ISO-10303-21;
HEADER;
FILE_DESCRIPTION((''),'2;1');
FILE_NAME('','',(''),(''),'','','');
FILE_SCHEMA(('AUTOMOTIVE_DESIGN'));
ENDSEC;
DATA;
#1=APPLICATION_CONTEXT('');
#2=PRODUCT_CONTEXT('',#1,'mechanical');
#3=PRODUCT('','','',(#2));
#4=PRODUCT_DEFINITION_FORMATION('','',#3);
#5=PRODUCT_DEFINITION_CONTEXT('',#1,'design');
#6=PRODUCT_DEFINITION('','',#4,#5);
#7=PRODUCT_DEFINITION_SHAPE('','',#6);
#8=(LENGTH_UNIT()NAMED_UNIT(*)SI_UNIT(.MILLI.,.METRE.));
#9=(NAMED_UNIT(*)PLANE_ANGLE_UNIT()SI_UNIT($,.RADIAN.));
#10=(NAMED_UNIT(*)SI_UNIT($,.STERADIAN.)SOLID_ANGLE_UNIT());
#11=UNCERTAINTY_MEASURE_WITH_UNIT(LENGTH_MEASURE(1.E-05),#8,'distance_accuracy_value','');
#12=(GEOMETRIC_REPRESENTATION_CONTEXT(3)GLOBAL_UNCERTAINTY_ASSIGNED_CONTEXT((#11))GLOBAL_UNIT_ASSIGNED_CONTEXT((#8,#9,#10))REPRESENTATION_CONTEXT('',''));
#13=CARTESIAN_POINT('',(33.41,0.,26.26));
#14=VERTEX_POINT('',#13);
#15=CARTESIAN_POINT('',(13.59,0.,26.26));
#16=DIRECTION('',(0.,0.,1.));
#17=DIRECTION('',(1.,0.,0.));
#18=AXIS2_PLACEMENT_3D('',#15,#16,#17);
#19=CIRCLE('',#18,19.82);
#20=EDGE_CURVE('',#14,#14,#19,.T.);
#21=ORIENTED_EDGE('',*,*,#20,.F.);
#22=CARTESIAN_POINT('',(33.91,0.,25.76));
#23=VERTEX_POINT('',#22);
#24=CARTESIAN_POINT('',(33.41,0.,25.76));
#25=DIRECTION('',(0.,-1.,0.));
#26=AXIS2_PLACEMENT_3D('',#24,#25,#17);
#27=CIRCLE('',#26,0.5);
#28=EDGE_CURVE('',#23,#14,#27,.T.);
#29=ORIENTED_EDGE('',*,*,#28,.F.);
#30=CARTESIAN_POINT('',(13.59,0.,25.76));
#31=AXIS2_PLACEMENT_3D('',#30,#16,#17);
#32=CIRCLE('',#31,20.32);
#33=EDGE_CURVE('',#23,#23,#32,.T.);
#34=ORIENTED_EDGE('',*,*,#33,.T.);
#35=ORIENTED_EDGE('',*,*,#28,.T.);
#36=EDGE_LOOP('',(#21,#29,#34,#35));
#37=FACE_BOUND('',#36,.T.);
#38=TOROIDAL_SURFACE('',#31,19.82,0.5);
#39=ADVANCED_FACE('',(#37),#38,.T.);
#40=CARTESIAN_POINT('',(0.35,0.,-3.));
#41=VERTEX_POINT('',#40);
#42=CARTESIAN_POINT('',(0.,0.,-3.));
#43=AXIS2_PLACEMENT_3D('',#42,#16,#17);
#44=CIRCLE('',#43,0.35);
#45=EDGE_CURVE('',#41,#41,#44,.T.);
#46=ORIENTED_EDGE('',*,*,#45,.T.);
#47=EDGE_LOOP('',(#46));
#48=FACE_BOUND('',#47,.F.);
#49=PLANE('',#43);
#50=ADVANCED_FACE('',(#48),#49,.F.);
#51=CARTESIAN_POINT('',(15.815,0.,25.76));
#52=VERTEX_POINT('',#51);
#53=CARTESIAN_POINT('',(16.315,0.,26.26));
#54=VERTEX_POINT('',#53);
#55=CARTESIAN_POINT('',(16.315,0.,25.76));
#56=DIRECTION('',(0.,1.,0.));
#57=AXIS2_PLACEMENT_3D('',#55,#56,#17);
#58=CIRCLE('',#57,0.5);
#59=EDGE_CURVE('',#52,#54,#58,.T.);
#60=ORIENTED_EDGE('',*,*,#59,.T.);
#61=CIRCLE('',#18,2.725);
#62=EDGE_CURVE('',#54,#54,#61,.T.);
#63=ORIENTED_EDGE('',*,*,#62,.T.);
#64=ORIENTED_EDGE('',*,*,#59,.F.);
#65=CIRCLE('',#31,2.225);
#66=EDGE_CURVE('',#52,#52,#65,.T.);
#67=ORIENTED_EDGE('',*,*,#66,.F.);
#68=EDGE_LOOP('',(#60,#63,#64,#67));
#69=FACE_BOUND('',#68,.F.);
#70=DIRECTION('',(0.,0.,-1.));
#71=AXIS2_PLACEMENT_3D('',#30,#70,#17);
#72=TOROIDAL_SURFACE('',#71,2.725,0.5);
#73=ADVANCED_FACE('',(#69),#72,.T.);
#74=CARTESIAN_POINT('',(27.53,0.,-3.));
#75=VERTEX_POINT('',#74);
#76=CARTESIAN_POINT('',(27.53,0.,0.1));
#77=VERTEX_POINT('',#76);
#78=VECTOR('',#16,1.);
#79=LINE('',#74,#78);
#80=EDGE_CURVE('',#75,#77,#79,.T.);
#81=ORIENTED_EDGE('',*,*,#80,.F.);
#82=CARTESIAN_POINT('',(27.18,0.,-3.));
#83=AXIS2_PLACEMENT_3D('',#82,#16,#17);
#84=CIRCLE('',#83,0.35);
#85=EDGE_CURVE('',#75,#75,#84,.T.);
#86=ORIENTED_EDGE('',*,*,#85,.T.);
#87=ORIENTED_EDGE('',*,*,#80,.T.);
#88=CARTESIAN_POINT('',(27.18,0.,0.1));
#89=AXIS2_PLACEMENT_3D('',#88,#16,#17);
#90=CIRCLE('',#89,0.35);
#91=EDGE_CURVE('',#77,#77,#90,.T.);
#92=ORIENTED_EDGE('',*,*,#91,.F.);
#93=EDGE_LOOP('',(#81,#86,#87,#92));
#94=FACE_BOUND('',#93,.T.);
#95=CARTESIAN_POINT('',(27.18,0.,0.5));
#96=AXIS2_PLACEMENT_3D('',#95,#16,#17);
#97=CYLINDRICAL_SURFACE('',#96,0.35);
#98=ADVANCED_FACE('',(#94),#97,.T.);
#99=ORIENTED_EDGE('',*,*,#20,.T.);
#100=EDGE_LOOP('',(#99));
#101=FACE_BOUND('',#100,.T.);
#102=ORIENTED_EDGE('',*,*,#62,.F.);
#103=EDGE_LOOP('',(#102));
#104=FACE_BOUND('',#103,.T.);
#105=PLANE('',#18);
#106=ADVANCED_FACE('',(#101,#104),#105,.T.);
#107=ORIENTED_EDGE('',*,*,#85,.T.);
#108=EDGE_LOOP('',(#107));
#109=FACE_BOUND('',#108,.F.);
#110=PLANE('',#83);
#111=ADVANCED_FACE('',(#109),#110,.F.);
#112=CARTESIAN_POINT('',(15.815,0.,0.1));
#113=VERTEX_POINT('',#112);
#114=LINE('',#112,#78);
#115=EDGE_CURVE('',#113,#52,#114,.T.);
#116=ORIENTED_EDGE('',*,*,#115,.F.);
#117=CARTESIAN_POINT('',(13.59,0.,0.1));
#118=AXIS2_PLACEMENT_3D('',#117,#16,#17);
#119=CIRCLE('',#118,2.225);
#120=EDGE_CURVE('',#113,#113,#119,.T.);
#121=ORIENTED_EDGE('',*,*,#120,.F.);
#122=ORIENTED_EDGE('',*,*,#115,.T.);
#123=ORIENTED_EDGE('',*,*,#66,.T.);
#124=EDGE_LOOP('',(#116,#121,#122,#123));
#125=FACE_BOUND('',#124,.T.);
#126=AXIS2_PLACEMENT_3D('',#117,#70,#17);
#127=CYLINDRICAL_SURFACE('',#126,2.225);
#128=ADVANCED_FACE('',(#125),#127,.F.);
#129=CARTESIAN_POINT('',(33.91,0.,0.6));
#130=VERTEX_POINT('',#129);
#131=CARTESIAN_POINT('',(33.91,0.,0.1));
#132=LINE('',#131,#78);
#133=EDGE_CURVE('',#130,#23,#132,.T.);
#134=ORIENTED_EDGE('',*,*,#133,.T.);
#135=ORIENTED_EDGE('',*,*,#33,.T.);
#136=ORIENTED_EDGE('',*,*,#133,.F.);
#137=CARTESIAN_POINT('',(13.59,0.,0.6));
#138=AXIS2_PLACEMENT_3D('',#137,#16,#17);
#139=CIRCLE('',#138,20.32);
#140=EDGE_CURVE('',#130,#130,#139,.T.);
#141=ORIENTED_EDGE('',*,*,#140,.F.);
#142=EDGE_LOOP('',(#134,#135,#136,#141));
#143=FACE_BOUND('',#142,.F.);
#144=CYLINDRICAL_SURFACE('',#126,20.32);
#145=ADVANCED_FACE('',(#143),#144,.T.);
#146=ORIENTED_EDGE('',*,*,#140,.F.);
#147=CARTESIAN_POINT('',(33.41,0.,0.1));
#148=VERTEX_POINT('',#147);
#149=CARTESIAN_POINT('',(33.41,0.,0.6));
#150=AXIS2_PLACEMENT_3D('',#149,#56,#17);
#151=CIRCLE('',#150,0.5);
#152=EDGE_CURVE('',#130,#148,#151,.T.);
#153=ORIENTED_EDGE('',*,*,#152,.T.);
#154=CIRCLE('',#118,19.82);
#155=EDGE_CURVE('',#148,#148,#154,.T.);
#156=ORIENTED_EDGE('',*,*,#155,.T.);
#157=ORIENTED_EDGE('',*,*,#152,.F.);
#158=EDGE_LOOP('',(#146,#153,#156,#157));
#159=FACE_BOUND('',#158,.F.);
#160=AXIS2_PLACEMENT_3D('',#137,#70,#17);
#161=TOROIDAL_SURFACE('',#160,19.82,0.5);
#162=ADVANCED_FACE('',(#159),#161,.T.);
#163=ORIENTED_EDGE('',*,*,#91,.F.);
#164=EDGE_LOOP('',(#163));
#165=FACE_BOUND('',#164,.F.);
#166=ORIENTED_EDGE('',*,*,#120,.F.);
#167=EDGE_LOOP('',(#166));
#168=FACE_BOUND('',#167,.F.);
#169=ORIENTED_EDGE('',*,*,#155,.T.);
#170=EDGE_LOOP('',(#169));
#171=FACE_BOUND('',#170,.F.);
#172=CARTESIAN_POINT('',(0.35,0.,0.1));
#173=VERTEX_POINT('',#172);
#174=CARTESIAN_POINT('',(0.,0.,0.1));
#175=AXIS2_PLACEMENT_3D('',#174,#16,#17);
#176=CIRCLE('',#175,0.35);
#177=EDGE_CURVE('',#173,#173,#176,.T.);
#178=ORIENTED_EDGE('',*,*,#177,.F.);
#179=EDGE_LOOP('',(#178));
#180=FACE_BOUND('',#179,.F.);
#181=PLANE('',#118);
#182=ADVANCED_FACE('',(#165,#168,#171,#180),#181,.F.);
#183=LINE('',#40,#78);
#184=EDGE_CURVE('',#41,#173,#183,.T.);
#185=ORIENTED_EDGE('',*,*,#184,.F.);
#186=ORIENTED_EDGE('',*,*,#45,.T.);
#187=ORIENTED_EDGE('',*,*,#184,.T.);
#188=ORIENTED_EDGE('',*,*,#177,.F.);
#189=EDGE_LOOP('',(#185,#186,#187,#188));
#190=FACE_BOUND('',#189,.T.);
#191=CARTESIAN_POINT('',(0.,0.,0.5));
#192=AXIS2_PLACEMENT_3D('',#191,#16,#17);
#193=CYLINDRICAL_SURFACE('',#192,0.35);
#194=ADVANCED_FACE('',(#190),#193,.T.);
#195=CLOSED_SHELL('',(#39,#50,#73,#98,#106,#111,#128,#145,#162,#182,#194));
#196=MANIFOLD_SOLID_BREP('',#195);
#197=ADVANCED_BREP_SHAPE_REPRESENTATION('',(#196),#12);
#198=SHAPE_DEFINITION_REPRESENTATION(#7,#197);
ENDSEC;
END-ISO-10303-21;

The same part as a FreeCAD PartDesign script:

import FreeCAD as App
import Part
import Sketcher
Q = App.Units.Quantity


def edges_at(feature, points):
    """Names of the edges that pass closest to the given points."""
    edges = feature.Shape.Edges
    near = lambda p: min(range(len(edges)), key=lambda i: edges[i].distToShape(Part.Vertex(*p))[0])
    return sorted({f"Edge{near(p) + 1}" for p in points})

doc = App.newDocument("Part")
body = doc.addObject("PartDesign::Body", "Body")

sketch1 = body.newObject("Sketcher::SketchObject", "Sketch")
sketch1.AttachmentSupport = (doc.getObject("XY_Plane"), [""])
sketch1.MapMode = "FlatFace"
sketch1.AttachmentOffset = App.Placement(App.Vector(0, 0, 0.1), App.Rotation())
sketch1.addGeometry(Part.Circle(App.Vector(13.6, 0, 0), App.Vector(0, 0, 1), 20.3), False)
sketch1.addGeometry(Part.Circle(App.Vector(13.6, 0, 0), App.Vector(0, 0, 1), 2.2), False)
sketch1.addConstraint(Sketcher.Constraint("Coincident", 1, 3, 0, 3))
sketch1.addConstraint(Sketcher.Constraint("PointOnObject", 0, 3, -1))
sketch1.addConstraint(Sketcher.Constraint("Diameter", 0, Q("40.64 mm")))
sketch1.addConstraint(Sketcher.Constraint("Diameter", 1, Q("4.45 mm")))
sketch1.addConstraint(Sketcher.Constraint("DistanceX", -1, 1, 0, 3, Q("13.59 mm")))
pad1 = body.newObject("PartDesign::Pad", "Pad")
pad1.Profile = sketch1
pad1.Length = 26.16
doc.recompute()

fillet = body.newObject("PartDesign::Fillet", "Fillet")
fillet.Base = (pad1, edges_at(pad1, [(11.365, 0, 26.26), (-6.73, 0, 26.26), (-6.73, 0, 0.1)]))
fillet.Radius = 0.5
body2 = doc.addObject("PartDesign::Body", "Body001")
body2.AllowCompound = True

sketch2 = body2.newObject("Sketcher::SketchObject", "Sketch001")
sketch2.AttachmentSupport = (doc.getObject("XY_Plane001"), [""])
sketch2.MapMode = "FlatFace"
sketch2.AttachmentOffset = App.Placement(App.Vector(0, 0, 0.5), App.Rotation())
sketch2.addGeometry(Part.Circle(App.Vector(0, 0, 0), App.Vector(0, 0, 1), 0.35), False)
sketch2.addGeometry(Part.Circle(App.Vector(27.18, 0, 0), App.Vector(0, 0, 1), 0.35), False)
sketch2.addConstraint(Sketcher.Constraint("Coincident", 0, 3, -1, 1))
sketch2.addConstraint(Sketcher.Constraint("Equal", 0, 1))
sketch2.addConstraint(Sketcher.Constraint("PointOnObject", 1, 3, -1))
sketch2.addConstraint(Sketcher.Constraint("Diameter", 0, Q("0.7 mm")))
sketch2.addConstraint(Sketcher.Constraint("DistanceX", -1, 1, 1, 3, Q("27.18 mm")))
pad2 = body2.newObject("PartDesign::Pad", "Pad001")
pad2.Profile = sketch2
pad2.Type = "TwoLengths"
pad2.Length = 13.08
pad2.Length2 = 3.5
doc.recompute()

boolean = body2.newObject("PartDesign::Boolean", "Boolean")
boolean.Type = "Fuse"
boolean.addObjects([body])

doc.recompute()
